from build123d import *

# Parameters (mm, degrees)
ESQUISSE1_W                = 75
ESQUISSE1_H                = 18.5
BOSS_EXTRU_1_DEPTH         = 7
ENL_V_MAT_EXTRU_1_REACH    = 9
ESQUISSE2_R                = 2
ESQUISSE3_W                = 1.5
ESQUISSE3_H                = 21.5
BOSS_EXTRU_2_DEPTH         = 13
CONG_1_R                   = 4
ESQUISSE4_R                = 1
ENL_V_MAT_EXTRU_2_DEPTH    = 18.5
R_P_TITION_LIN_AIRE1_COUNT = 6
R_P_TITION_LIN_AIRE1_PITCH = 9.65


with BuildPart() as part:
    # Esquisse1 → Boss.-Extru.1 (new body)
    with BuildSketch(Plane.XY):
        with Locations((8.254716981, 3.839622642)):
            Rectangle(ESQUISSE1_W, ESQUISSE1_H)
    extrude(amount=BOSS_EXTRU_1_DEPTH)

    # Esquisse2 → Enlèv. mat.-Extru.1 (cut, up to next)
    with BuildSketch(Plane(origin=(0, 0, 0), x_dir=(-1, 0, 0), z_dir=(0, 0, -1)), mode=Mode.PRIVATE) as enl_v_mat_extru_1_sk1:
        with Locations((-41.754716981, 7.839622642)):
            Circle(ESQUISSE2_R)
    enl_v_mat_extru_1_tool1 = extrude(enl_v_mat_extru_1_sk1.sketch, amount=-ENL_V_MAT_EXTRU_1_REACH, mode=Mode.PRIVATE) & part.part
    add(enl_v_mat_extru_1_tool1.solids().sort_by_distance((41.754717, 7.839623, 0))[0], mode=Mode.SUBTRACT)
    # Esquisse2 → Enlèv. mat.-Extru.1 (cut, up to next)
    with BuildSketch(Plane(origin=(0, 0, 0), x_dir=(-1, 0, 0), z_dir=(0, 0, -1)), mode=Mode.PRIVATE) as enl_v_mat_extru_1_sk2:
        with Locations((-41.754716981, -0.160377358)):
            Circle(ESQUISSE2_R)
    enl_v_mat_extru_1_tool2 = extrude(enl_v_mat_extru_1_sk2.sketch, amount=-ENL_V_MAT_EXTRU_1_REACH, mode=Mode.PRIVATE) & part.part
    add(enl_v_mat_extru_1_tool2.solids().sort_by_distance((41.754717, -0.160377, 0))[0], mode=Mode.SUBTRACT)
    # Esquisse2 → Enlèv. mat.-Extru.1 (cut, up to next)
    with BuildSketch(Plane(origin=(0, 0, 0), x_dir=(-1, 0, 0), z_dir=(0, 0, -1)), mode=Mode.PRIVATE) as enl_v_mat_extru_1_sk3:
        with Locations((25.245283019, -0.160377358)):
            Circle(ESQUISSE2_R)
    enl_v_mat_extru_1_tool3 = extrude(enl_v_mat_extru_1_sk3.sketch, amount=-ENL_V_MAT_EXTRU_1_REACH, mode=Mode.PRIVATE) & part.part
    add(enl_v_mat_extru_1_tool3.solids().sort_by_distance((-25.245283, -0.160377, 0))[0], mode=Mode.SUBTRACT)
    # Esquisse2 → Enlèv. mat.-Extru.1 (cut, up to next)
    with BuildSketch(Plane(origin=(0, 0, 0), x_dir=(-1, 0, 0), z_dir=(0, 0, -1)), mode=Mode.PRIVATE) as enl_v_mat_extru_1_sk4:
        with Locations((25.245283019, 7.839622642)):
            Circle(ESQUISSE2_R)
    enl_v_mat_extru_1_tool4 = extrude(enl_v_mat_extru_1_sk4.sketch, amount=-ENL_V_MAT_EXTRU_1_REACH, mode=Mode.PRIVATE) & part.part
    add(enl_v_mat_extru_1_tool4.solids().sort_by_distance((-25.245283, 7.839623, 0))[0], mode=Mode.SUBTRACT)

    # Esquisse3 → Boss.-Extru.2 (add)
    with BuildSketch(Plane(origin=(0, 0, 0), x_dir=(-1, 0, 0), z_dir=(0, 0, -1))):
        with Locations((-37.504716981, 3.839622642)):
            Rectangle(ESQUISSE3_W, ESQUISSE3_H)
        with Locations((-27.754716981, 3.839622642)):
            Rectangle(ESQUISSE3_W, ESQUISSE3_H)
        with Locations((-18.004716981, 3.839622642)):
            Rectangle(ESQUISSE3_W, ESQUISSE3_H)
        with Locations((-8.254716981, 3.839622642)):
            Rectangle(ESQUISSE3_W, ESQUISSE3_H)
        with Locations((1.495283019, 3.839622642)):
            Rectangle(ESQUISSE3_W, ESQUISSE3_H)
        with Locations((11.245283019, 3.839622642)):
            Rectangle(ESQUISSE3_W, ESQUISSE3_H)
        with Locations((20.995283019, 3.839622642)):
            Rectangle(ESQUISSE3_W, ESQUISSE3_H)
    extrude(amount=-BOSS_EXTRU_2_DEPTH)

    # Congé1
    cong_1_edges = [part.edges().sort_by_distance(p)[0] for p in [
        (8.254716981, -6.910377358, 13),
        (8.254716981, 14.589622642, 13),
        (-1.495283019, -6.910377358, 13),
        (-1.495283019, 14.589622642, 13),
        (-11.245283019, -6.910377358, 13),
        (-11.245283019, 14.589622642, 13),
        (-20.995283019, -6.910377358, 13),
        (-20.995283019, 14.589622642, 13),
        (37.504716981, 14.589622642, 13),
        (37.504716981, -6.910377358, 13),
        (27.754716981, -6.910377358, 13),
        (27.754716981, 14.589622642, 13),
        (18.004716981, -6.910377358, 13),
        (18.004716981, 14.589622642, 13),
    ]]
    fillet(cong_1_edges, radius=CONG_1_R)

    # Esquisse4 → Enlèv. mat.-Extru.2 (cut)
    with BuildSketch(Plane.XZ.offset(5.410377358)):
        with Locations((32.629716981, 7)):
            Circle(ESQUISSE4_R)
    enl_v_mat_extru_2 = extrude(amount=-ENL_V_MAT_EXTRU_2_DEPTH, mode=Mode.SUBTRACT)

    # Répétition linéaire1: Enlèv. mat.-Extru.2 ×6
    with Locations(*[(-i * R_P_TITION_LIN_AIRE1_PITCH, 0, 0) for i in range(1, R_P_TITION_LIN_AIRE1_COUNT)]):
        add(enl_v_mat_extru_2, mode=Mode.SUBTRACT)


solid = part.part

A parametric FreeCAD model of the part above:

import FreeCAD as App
import Part
import Sketcher
Q = App.Units.Quantity


def edges_at(feature, points):
    """Names of the edges that pass closest to the given points."""
    edges = feature.Shape.Edges
    near = lambda p: min(range(len(edges)), key=lambda i: edges[i].distToShape(Part.Vertex(*p))[0])
    return sorted({f"Edge{near(p) + 1}" for p in points})

doc = App.newDocument("Part")
params = doc.addObject("Spreadsheet::Sheet", "Params")
for row, (alias, value) in enumerate([
    ("sketch1_width", "75 mm"),
    ("sketch1_height", "18.5 mm"),
    ("pad1_length", "7 mm"),
    ("sketch2_diameter", "4 mm"),
    ("sketch3_diameter", "4 mm"),
    ("sketch4_diameter", "4 mm"),
    ("sketch5_diameter", "4 mm"),
    ("sketch6_width", "1.5 mm"),
    ("sketch6_height", "21.5 mm"),
    ("pad2_length", "13 mm"),
    ("fillet_radius", "4 mm"),
    ("sketch7_diameter", "2 mm"),
    ("pocket5_length", "18.5 mm"),
    ("linearpattern_pitch", "9.65 mm"),
], start=1):
    params.set(f"A{row}", alias)
    params.set(f"B{row}", "=" + value)
    params.setAlias(f"B{row}", alias)

body = doc.addObject("PartDesign::Body", "Body")

# Sketch on XY plane
sketch1 = body.newObject("Sketcher::SketchObject", "Sketch")
sketch1.AttachmentSupport = (doc.getObject("XY_Plane"), [""])
sketch1.MapMode = "FlatFace"
sketch1.addGeometry([
    Part.LineSegment(App.Vector(-29, 13, 0), App.Vector(-29, -5, 0)),
    Part.LineSegment(App.Vector(-29, -5, 0), App.Vector(46, -5, 0)),
    Part.LineSegment(App.Vector(46, -5, 0), App.Vector(46, 13, 0)),
    Part.LineSegment(App.Vector(46, 13, 0), App.Vector(-29, 13, 0)),
], False)
sketch1.addConstraint([
    Sketcher.Constraint("Coincident", 0, 2, 1, 1),
    Sketcher.Constraint("Coincident", 1, 2, 2, 1),
    Sketcher.Constraint("Coincident", 2, 2, 3, 1),
    Sketcher.Constraint("Coincident", 3, 2, 0, 1),
    Sketcher.Constraint("Vertical", 0),
    Sketcher.Constraint("Horizontal", 1),
    Sketcher.Constraint("Vertical", 2),
    Sketcher.Constraint("Horizontal", 3),
    Sketcher.Constraint("DistanceX", 1, 1, 1, 2, Q("75 mm")),
    Sketcher.Constraint("DistanceY", 0, 2, 0, 1, Q("18.5 mm")),
    Sketcher.Constraint("DistanceX", 0, 2, -1, 1, Q("29.245283 mm")),
    Sketcher.Constraint("DistanceY", 0, 2, -1, 1, Q("5.410377 mm")),
])
sketch1.setExpression("Constraints[8]", "Params.sketch1_width")
sketch1.setExpression("Constraints[9]", "Params.sketch1_height")
pad1 = body.newObject("PartDesign::Pad", "Pad")
pad1.Profile = sketch1
pad1.setExpression("Length", "Params.pad1_length")

# Sketch on XY plane
sketch2 = body.newObject("Sketcher::SketchObject", "Sketch001")
sketch2.AttachmentSupport = (doc.getObject("XY_Plane"), [""])
sketch2.MapMode = "FlatFace"
sketch2.addGeometry(Part.Circle(App.Vector(41.8, 7.8, 0), App.Vector(0, 0, 1), 2), False)
sketch2.addConstraint([
    Sketcher.Constraint("Diameter", 0, Q("4 mm")),
    Sketcher.Constraint("DistanceX", -1, 1, 0, 3, Q("41.754717 mm")),
    Sketcher.Constraint("DistanceY", -1, 1, 0, 3, Q("7.839623 mm")),
])
sketch2.setExpression("Constraints[0]", "Params.sketch2_diameter")
pocket1 = body.newObject("PartDesign::Pocket", "Pocket")
pocket1.Profile = sketch2
pocket1.Type = "UpToFirst"
pocket1.Reversed = True

# Sketch on XY plane
sketch3 = body.newObject("Sketcher::SketchObject", "Sketch002")
sketch3.AttachmentSupport = (doc.getObject("XY_Plane"), [""])
sketch3.MapMode = "FlatFace"
sketch3.addGeometry(Part.Circle(App.Vector(41.8, -0.2, 0), App.Vector(0, 0, 1), 2), False)
sketch3.addConstraint([
    Sketcher.Constraint("Diameter", 0, Q("4 mm")),
    Sketcher.Constraint("DistanceX", -1, 1, 0, 3, Q("41.754717 mm")),
    Sketcher.Constraint("DistanceY", 0, 3, -1, 1, Q("0.160377 mm")),
])
sketch3.setExpression("Constraints[0]", "Params.sketch3_diameter")
pocket2 = body.newObject("PartDesign::Pocket", "Pocket001")
pocket2.Profile = sketch3
pocket2.Type = "UpToFirst"
pocket2.Reversed = True

# Sketch on XY plane
sketch4 = body.newObject("Sketcher::SketchObject", "Sketch003")
sketch4.AttachmentSupport = (doc.getObject("XY_Plane"), [""])
sketch4.MapMode = "FlatFace"
sketch4.addGeometry(Part.Circle(App.Vector(-25.2, -0.2, 0), App.Vector(0, 0, 1), 2), False)
sketch4.addConstraint([
    Sketcher.Constraint("Diameter", 0, Q("4 mm")),
    Sketcher.Constraint("DistanceX", 0, 3, -1, 1, Q("25.245283 mm")),
    Sketcher.Constraint("DistanceY", 0, 3, -1, 1, Q("0.160377 mm")),
])
sketch4.setExpression("Constraints[0]", "Params.sketch4_diameter")
pocket3 = body.newObject("PartDesign::Pocket", "Pocket002")
pocket3.Profile = sketch4
pocket3.Type = "UpToFirst"
pocket3.Reversed = True

# Sketch on XY plane
sketch5 = body.newObject("Sketcher::SketchObject", "Sketch004")
sketch5.AttachmentSupport = (doc.getObject("XY_Plane"), [""])
sketch5.MapMode = "FlatFace"
sketch5.addGeometry(Part.Circle(App.Vector(-25.2, 7.8, 0), App.Vector(0, 0, 1), 2), False)
sketch5.addConstraint([
    Sketcher.Constraint("Diameter", 0, Q("4 mm")),
    Sketcher.Constraint("DistanceX", 0, 3, -1, 1, Q("25.245283 mm")),
    Sketcher.Constraint("DistanceY", -1, 1, 0, 3, Q("7.839623 mm")),
])
sketch5.setExpression("Constraints[0]", "Params.sketch5_diameter")
pocket4 = body.newObject("PartDesign::Pocket", "Pocket003")
pocket4.Profile = sketch5
pocket4.Type = "UpToFirst"
pocket4.Reversed = True

# Sketch on XY plane
sketch6 = body.newObject("Sketcher::SketchObject", "Sketch005")
sketch6.AttachmentSupport = (doc.getObject("XY_Plane"), [""])
sketch6.MapMode = "FlatFace"
sketch6.addGeometry([
    Part.LineSegment(App.Vector(38.3, 14.6, 0), App.Vector(38.3, -6.9, 0)),  # 0
    Part.LineSegment(App.Vector(38.3, -6.9, 0), App.Vector(36.8, -6.9, 0)),  # 1
    Part.LineSegment(App.Vector(36.8, -6.9, 0), App.Vector(36.8, 14.6, 0)),  # 2
    Part.LineSegment(App.Vector(36.8, 14.6, 0), App.Vector(38.3, 14.6, 0)),  # 3
    Part.LineSegment(App.Vector(28.5, 14.6, 0), App.Vector(28.5, -6.9, 0)),  # 4
    Part.LineSegment(App.Vector(28.5, -6.9, 0), App.Vector(27, -6.9, 0)),  # 5
    Part.LineSegment(App.Vector(27, -6.9, 0), App.Vector(27, 14.6, 0)),  # 6
    Part.LineSegment(App.Vector(27, 14.6, 0), App.Vector(28.5, 14.6, 0)),  # 7
    Part.LineSegment(App.Vector(18.8, 14.6, 0), App.Vector(18.8, -6.9, 0)),  # 8
    Part.LineSegment(App.Vector(18.8, -6.9, 0), App.Vector(17.3, -6.9, 0)),  # 9
    Part.LineSegment(App.Vector(17.3, -6.9, 0), App.Vector(17.3, 14.6, 0)),  # 10
    Part.LineSegment(App.Vector(17.3, 14.6, 0), App.Vector(18.8, 14.6, 0)),  # 11
    Part.LineSegment(App.Vector(9, 14.6, 0), App.Vector(9, -6.9, 0)),  # 12
    Part.LineSegment(App.Vector(9, -6.9, 0), App.Vector(7.5, -6.9, 0)),  # 13
    Part.LineSegment(App.Vector(7.5, -6.9, 0), App.Vector(7.5, 14.6, 0)),  # 14
    Part.LineSegment(App.Vector(7.5, 14.6, 0), App.Vector(9, 14.6, 0)),  # 15
    Part.LineSegment(App.Vector(-0.7, 14.6, 0), App.Vector(-0.7, -6.9, 0)),  # 16
    Part.LineSegment(App.Vector(-0.7, -6.9, 0), App.Vector(-2.2, -6.9, 0)),  # 17
    Part.LineSegment(App.Vector(-2.2, -6.9, 0), App.Vector(-2.2, 14.6, 0)),  # 18
    Part.LineSegment(App.Vector(-2.2, 14.6, 0), App.Vector(-0.7, 14.6, 0)),  # 19
    Part.LineSegment(App.Vector(-10.5, 14.6, 0), App.Vector(-10.5, -6.9, 0)),  # 20
    Part.LineSegment(App.Vector(-10.5, -6.9, 0), App.Vector(-12, -6.9, 0)),  # 21
    Part.LineSegment(App.Vector(-12, -6.9, 0), App.Vector(-12, 14.6, 0)),  # 22
    Part.LineSegment(App.Vector(-12, 14.6, 0), App.Vector(-10.5, 14.6, 0)),  # 23
    Part.LineSegment(App.Vector(-20.2, 14.6, 0), App.Vector(-20.2, -6.9, 0)),  # 24
    Part.LineSegment(App.Vector(-20.2, -6.9, 0), App.Vector(-21.7, -6.9, 0)),  # 25
    Part.LineSegment(App.Vector(-21.7, -6.9, 0), App.Vector(-21.7, 14.6, 0)),  # 26
    Part.LineSegment(App.Vector(-21.7, 14.6, 0), App.Vector(-20.2, 14.6, 0)),  # 27
], False)
sketch6.addConstraint([
    Sketcher.Constraint("Coincident", 0, 2, 1, 1),
    Sketcher.Constraint("Coincident", 1, 2, 2, 1),
    Sketcher.Constraint("Coincident", 2, 2, 3, 1),
    Sketcher.Constraint("Coincident", 3, 2, 0, 1),
    Sketcher.Constraint("Coincident", 4, 2, 5, 1),
    Sketcher.Constraint("Coincident", 5, 2, 6, 1),
    Sketcher.Constraint("Coincident", 6, 2, 7, 1),
    Sketcher.Constraint("Coincident", 7, 2, 4, 1),
    Sketcher.Constraint("Coincident", 8, 2, 9, 1),
    Sketcher.Constraint("Coincident", 9, 2, 10, 1),
    Sketcher.Constraint("Coincident", 10, 2, 11, 1),
    Sketcher.Constraint("Coincident", 11, 2, 8, 1),
    Sketcher.Constraint("Coincident", 12, 2, 13, 1),
    Sketcher.Constraint("Coincident", 13, 2, 14, 1),
    Sketcher.Constraint("Coincident", 14, 2, 15, 1),
    Sketcher.Constraint("Coincident", 15, 2, 12, 1),
    Sketcher.Constraint("Coincident", 16, 2, 17, 1),
    Sketcher.Constraint("Coincident", 17, 2, 18, 1),
    Sketcher.Constraint("Coincident", 18, 2, 19, 1),
    Sketcher.Constraint("Coincident", 19, 2, 16, 1),
    Sketcher.Constraint("Coincident", 20, 2, 21, 1),
    Sketcher.Constraint("Coincident", 21, 2, 22, 1),
    Sketcher.Constraint("Coincident", 22, 2, 23, 1),
    Sketcher.Constraint("Coincident", 23, 2, 20, 1),
    Sketcher.Constraint("Coincident", 24, 2, 25, 1),
    Sketcher.Constraint("Coincident", 25, 2, 26, 1),
    Sketcher.Constraint("Coincident", 26, 2, 27, 1),
    Sketcher.Constraint("Coincident", 27, 2, 24, 1),
    Sketcher.Constraint("Vertical", 0),
    Sketcher.Constraint("Horizontal", 1),
    Sketcher.Constraint("Vertical", 2),
    Sketcher.Constraint("Horizontal", 3),
    Sketcher.Constraint("Vertical", 4),
    Sketcher.Constraint("Horizontal", 5),
    Sketcher.Constraint("Vertical", 6),
    Sketcher.Constraint("Horizontal", 7),
    Sketcher.Constraint("Vertical", 8),
    Sketcher.Constraint("Horizontal", 9),
    Sketcher.Constraint("Vertical", 10),
    Sketcher.Constraint("Horizontal", 11),
    Sketcher.Constraint("Vertical", 12),
    Sketcher.Constraint("Horizontal", 13),
    Sketcher.Constraint("Vertical", 14),
    Sketcher.Constraint("Horizontal", 15),
    Sketcher.Constraint("Vertical", 16),
    Sketcher.Constraint("Horizontal", 17),
    Sketcher.Constraint("Vertical", 18),
    Sketcher.Constraint("Horizontal", 19),
    Sketcher.Constraint("Vertical", 20),
    Sketcher.Constraint("Horizontal", 21),
    Sketcher.Constraint("Vertical", 22),
    Sketcher.Constraint("Horizontal", 23),
    Sketcher.Constraint("Vertical", 24),
    Sketcher.Constraint("Horizontal", 25),
    Sketcher.Constraint("Vertical", 26),
    Sketcher.Constraint("Horizontal", 27),
    Sketcher.Constraint("Horizontal", 1, 2, 4, 2),
    Sketcher.Constraint("Horizontal", 3, 2, 6, 2),
    Sketcher.Constraint("Horizontal", 5, 2, 8, 2),
    Sketcher.Constraint("Horizontal", 7, 2, 10, 2),
    Sketcher.Constraint("Horizontal", 9, 2, 12, 2),
    Sketcher.Constraint("Horizontal", 11, 2, 14, 2),
    Sketcher.Constraint("Horizontal", 13, 2, 16, 2),
    Sketcher.Constraint("Horizontal", 15, 2, 18, 2),
    Sketcher.Constraint("Horizontal", 17, 2, 20, 2),
    Sketcher.Constraint("Horizontal", 19, 2, 22, 2),
    Sketcher.Constraint("Horizontal", 21, 2, 24, 2),
    Sketcher.Constraint("Horizontal", 23, 2, 26, 2),
    Sketcher.Constraint("Equal", 3, 5),
    Sketcher.Constraint("Equal", 7, 9),
    Sketcher.Constraint("Equal", 11, 13),
    Sketcher.Constraint("Equal", 15, 17),
    Sketcher.Constraint("Equal", 19, 21),
    Sketcher.Constraint("Equal", 23, 25),
    Sketcher.Constraint("DistanceX", 1, 2, 1, 1, Q("1.5 mm")),
    Sketcher.Constraint("DistanceY", 0, 2, 0, 1, Q("21.5 mm")),
    Sketcher.Constraint("DistanceX", 8, 2, 1, 2, Q("18 mm")),
    Sketcher.Constraint("DistanceX", 12, 2, 5, 2, Q("18 mm")),
    Sketcher.Constraint("DistanceX", 16, 2, 9, 2, Q("18 mm")),
    Sketcher.Constraint("DistanceX", 20, 2, 13, 2, Q("18 mm")),
    Sketcher.Constraint("DistanceX", 24, 2, 17, 2, Q("18 mm")),
    Sketcher.Constraint("DistanceX", 4, 2, 1, 2, Q("8.25 mm")),
    Sketcher.Constraint("DistanceX", -1, 1, 0, 2, Q("38.254717 mm")),
    Sketcher.Constraint("DistanceY", 0, 2, -1, 1, Q("6.910377 mm")),
])
sketch6.setExpression("Constraints[74]", "Params.sketch6_width")
sketch6.setExpression("Constraints[75]", "Params.sketch6_height")
pad2 = body.newObject("PartDesign::Pad", "Pad001")
pad2.Profile = sketch6
pad2.setExpression("Length", "Params.pad2_length")
doc.recompute()

fillet = body.newObject("PartDesign::Fillet", "Fillet")
fillet.Base = (pad2, edges_at(pad2, [
    (8.255, -6.91, 13),
    (8.255, 14.59, 13),
    (-1.495, -6.91, 13),
    (-1.495, 14.59, 13),
    (-11.245, -6.91, 13),
    (-11.245, 14.59, 13),
    (-20.995, -6.91, 13),
    (-20.995, 14.59, 13),
    (37.505, 14.59, 13),
    (37.505, -6.91, 13),
    (27.755, -6.91, 13),
    (27.755, 14.59, 13),
    (18.005, -6.91, 13),
    (18.005, 14.59, 13),
]))
fillet.setExpression("Radius", "Params.fillet_radius")

# Sketch on XZ plane
sketch7 = body.newObject("Sketcher::SketchObject", "Sketch006")
sketch7.AttachmentSupport = (doc.getObject("XZ_Plane"), [""])
sketch7.MapMode = "FlatFace"
sketch7.AttachmentOffset = App.Placement(App.Vector(0, 0, 5.410377), App.Rotation())
sketch7.addGeometry(Part.Circle(App.Vector(32.6, 7, 0), App.Vector(0, 0, 1), 1), False)
sketch7.addConstraint([
    Sketcher.Constraint("Diameter", 0, Q("2 mm")),
    Sketcher.Constraint("DistanceY", -1, 1, 0, 3, Q("7 mm")),
    Sketcher.Constraint("DistanceX", -1, 1, 0, 3, Q("32.629717 mm")),
])
sketch7.setExpression("Constraints[0]", "Params.sketch7_diameter")
pocket5 = body.newObject("PartDesign::Pocket", "Pocket004")
pocket5.Profile = sketch7
pocket5.setExpression("Length", "Params.pocket5_length")
doc.recompute()

linearpattern = body.newObject("PartDesign::LinearPattern", "LinearPattern")
linearpattern.Originals = [pocket5]
linearpattern.Direction = (doc.getObject("X_Axis"), [""])
linearpattern.Mode = "offset"
linearpattern.setExpression("Offset", "Params.linearpattern_pitch")
linearpattern.Occurrences = 6
linearpattern.Reversed = True
body.Tip = linearpattern

doc.recompute()
